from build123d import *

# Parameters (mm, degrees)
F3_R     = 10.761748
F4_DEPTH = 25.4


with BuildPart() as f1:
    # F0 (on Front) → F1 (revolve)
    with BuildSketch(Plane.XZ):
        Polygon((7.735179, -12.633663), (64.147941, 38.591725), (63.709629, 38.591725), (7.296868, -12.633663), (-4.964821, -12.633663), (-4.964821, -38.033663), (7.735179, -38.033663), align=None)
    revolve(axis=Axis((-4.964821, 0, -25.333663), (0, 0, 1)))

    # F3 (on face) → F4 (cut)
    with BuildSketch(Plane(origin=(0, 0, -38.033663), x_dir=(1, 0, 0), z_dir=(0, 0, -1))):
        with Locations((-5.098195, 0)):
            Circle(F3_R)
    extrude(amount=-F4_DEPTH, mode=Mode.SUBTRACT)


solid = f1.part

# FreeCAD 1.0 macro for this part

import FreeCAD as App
import Part
import Sketcher

V = App.Vector
Q = App.Units.Quantity

doc = App.newDocument("Part")
params = doc.addObject("Spreadsheet::Sheet", "Params")
for row, (alias, value) in enumerate([
    ("sketch1_height", "1 in"),
    ("sketch1_length", "3 in"),
    ("sketch1_width", "0.5 in"),
    ("revolution_angle", "360 deg"),
    ("pocket1_length", "1 in"),
], start=1):
    params.set(f"A{row}", alias)
    params.set(f"B{row}", "=" + value)
    params.setAlias(f"B{row}", alias)

body = doc.addObject("PartDesign::Body", "Body")

# Sketch on XZ plane
sketch1 = doc.addObject("Sketcher::SketchObject", "Sketch")
body.addObject(sketch1)
sketch1.AttachmentSupport = (doc.XZ_Plane, [""])
sketch1.MapMode = "FlatFace"
sketch1.addGeometry([
    Part.LineSegment(V(7.735179, -12.633663, 0), V(64.147941, 38.591725, 0)),  # 0
    Part.LineSegment(V(64.147941, 38.591725, 0), V(63.709629, 38.591725, 0)),  # 1
    Part.LineSegment(V(63.709629, 38.591725, 0), V(7.296868, -12.633663, 0)),  # 2
    Part.LineSegment(V(7.296868, -12.633663, 0), V(-4.964821, -12.633663, 0)),  # 3
    Part.LineSegment(V(-4.964821, -12.633663, 0), V(-4.964821, -38.033663, 0)),  # 4
    Part.LineSegment(V(-4.964821, -38.033663, 0), V(7.735179, -38.033663, 0)),  # 5
    Part.LineSegment(V(7.735179, -38.033663, 0), V(7.735179, -12.633663, 0)),  # 6
], False)
sketch1.addGeometry(Part.LineSegment(V(-4.964821, -38.033663, 0), V(-4.964821, 38.591725, 0)), True)  # axis
sketch1.addConstraint([
    Sketcher.Constraint("Coincident", 0, 2, 1, 1),
    Sketcher.Constraint("Coincident", 1, 2, 2, 1),
    Sketcher.Constraint("Coincident", 2, 2, 3, 1),
    Sketcher.Constraint("Coincident", 3, 2, 4, 1),
    Sketcher.Constraint("Coincident", 4, 2, 5, 1),
    Sketcher.Constraint("Coincident", 5, 2, 6, 1),
    Sketcher.Constraint("Coincident", 6, 2, 0, 1),
    Sketcher.Constraint("Horizontal", 1),
    Sketcher.Constraint("Horizontal", 3),
    Sketcher.Constraint("Vertical", 4),
    Sketcher.Constraint("Horizontal", 5),
    Sketcher.Constraint("Vertical", 6),
    Sketcher.Constraint("Vertical", 7),
    Sketcher.Constraint("Coincident", 7, 1, 4, 2),
    Sketcher.Constraint("Parallel", 0, 2),
    Sketcher.Constraint("Horizontal", 3, 2, 6, 2),
    Sketcher.Constraint("Horizontal", 1, 2, 7, 2),
    Sketcher.Constraint("DistanceY", 4, 2, 4, 1, Q("1 in")),
    Sketcher.Constraint("Distance", 0, Q("3 in")),
    Sketcher.Constraint("DistanceX", 5, 1, 5, 2, Q("0.5 in")),
    Sketcher.Constraint("DistanceX", 3, 2, 3, 1, 12.261689),
    Sketcher.Constraint("DistanceY", 7, 1, 7, 2, 76.625388),
    Sketcher.Constraint("DistanceX", -1, 1, 0, 2, 64.147941),
    Sketcher.Constraint("DistanceY", -1, 1, 0, 2, 38.591725),
])
sketch1.setExpression("Constraints[17]", "Params.sketch1_height")
sketch1.setExpression("Constraints[18]", "Params.sketch1_length")
sketch1.setExpression("Constraints[19]", "Params.sketch1_width")
revolution = doc.addObject("PartDesign::Revolution", "Revolution")
body.addObject(revolution)
revolution.Profile = sketch1
revolution.ReferenceAxis = (sketch1, ["Axis0"])
revolution.setExpression("Angle", "Params.revolution_angle")

# Sketch on XY plane
sketch2 = doc.addObject("Sketcher::SketchObject", "Sketch001")
body.addObject(sketch2)
sketch2.AttachmentSupport = (doc.XY_Plane, [""])
sketch2.MapMode = "FlatFace"
sketch2.AttachmentOffset = App.Placement(V(0, 0, -38.033663), App.Rotation())
sketch2.addGeometry(Part.Circle(V(-5.098195, 0, 0), V(0, 0, 1), 10.761748), False)
sketch2.addConstraint([
    Sketcher.Constraint("PointOnObject", 0, 3, -1),
    Sketcher.Constraint("Diameter", 0, 21.523496),
    Sketcher.Constraint("DistanceX", 0, 3, -1, 1, 5.098195),
])
pocket1 = doc.addObject("PartDesign::Pocket", "Pocket")
body.addObject(pocket1)
pocket1.Profile = sketch2
pocket1.setExpression("Length", "Params.pocket1_length")
pocket1.Reversed = True

doc.recompute()
